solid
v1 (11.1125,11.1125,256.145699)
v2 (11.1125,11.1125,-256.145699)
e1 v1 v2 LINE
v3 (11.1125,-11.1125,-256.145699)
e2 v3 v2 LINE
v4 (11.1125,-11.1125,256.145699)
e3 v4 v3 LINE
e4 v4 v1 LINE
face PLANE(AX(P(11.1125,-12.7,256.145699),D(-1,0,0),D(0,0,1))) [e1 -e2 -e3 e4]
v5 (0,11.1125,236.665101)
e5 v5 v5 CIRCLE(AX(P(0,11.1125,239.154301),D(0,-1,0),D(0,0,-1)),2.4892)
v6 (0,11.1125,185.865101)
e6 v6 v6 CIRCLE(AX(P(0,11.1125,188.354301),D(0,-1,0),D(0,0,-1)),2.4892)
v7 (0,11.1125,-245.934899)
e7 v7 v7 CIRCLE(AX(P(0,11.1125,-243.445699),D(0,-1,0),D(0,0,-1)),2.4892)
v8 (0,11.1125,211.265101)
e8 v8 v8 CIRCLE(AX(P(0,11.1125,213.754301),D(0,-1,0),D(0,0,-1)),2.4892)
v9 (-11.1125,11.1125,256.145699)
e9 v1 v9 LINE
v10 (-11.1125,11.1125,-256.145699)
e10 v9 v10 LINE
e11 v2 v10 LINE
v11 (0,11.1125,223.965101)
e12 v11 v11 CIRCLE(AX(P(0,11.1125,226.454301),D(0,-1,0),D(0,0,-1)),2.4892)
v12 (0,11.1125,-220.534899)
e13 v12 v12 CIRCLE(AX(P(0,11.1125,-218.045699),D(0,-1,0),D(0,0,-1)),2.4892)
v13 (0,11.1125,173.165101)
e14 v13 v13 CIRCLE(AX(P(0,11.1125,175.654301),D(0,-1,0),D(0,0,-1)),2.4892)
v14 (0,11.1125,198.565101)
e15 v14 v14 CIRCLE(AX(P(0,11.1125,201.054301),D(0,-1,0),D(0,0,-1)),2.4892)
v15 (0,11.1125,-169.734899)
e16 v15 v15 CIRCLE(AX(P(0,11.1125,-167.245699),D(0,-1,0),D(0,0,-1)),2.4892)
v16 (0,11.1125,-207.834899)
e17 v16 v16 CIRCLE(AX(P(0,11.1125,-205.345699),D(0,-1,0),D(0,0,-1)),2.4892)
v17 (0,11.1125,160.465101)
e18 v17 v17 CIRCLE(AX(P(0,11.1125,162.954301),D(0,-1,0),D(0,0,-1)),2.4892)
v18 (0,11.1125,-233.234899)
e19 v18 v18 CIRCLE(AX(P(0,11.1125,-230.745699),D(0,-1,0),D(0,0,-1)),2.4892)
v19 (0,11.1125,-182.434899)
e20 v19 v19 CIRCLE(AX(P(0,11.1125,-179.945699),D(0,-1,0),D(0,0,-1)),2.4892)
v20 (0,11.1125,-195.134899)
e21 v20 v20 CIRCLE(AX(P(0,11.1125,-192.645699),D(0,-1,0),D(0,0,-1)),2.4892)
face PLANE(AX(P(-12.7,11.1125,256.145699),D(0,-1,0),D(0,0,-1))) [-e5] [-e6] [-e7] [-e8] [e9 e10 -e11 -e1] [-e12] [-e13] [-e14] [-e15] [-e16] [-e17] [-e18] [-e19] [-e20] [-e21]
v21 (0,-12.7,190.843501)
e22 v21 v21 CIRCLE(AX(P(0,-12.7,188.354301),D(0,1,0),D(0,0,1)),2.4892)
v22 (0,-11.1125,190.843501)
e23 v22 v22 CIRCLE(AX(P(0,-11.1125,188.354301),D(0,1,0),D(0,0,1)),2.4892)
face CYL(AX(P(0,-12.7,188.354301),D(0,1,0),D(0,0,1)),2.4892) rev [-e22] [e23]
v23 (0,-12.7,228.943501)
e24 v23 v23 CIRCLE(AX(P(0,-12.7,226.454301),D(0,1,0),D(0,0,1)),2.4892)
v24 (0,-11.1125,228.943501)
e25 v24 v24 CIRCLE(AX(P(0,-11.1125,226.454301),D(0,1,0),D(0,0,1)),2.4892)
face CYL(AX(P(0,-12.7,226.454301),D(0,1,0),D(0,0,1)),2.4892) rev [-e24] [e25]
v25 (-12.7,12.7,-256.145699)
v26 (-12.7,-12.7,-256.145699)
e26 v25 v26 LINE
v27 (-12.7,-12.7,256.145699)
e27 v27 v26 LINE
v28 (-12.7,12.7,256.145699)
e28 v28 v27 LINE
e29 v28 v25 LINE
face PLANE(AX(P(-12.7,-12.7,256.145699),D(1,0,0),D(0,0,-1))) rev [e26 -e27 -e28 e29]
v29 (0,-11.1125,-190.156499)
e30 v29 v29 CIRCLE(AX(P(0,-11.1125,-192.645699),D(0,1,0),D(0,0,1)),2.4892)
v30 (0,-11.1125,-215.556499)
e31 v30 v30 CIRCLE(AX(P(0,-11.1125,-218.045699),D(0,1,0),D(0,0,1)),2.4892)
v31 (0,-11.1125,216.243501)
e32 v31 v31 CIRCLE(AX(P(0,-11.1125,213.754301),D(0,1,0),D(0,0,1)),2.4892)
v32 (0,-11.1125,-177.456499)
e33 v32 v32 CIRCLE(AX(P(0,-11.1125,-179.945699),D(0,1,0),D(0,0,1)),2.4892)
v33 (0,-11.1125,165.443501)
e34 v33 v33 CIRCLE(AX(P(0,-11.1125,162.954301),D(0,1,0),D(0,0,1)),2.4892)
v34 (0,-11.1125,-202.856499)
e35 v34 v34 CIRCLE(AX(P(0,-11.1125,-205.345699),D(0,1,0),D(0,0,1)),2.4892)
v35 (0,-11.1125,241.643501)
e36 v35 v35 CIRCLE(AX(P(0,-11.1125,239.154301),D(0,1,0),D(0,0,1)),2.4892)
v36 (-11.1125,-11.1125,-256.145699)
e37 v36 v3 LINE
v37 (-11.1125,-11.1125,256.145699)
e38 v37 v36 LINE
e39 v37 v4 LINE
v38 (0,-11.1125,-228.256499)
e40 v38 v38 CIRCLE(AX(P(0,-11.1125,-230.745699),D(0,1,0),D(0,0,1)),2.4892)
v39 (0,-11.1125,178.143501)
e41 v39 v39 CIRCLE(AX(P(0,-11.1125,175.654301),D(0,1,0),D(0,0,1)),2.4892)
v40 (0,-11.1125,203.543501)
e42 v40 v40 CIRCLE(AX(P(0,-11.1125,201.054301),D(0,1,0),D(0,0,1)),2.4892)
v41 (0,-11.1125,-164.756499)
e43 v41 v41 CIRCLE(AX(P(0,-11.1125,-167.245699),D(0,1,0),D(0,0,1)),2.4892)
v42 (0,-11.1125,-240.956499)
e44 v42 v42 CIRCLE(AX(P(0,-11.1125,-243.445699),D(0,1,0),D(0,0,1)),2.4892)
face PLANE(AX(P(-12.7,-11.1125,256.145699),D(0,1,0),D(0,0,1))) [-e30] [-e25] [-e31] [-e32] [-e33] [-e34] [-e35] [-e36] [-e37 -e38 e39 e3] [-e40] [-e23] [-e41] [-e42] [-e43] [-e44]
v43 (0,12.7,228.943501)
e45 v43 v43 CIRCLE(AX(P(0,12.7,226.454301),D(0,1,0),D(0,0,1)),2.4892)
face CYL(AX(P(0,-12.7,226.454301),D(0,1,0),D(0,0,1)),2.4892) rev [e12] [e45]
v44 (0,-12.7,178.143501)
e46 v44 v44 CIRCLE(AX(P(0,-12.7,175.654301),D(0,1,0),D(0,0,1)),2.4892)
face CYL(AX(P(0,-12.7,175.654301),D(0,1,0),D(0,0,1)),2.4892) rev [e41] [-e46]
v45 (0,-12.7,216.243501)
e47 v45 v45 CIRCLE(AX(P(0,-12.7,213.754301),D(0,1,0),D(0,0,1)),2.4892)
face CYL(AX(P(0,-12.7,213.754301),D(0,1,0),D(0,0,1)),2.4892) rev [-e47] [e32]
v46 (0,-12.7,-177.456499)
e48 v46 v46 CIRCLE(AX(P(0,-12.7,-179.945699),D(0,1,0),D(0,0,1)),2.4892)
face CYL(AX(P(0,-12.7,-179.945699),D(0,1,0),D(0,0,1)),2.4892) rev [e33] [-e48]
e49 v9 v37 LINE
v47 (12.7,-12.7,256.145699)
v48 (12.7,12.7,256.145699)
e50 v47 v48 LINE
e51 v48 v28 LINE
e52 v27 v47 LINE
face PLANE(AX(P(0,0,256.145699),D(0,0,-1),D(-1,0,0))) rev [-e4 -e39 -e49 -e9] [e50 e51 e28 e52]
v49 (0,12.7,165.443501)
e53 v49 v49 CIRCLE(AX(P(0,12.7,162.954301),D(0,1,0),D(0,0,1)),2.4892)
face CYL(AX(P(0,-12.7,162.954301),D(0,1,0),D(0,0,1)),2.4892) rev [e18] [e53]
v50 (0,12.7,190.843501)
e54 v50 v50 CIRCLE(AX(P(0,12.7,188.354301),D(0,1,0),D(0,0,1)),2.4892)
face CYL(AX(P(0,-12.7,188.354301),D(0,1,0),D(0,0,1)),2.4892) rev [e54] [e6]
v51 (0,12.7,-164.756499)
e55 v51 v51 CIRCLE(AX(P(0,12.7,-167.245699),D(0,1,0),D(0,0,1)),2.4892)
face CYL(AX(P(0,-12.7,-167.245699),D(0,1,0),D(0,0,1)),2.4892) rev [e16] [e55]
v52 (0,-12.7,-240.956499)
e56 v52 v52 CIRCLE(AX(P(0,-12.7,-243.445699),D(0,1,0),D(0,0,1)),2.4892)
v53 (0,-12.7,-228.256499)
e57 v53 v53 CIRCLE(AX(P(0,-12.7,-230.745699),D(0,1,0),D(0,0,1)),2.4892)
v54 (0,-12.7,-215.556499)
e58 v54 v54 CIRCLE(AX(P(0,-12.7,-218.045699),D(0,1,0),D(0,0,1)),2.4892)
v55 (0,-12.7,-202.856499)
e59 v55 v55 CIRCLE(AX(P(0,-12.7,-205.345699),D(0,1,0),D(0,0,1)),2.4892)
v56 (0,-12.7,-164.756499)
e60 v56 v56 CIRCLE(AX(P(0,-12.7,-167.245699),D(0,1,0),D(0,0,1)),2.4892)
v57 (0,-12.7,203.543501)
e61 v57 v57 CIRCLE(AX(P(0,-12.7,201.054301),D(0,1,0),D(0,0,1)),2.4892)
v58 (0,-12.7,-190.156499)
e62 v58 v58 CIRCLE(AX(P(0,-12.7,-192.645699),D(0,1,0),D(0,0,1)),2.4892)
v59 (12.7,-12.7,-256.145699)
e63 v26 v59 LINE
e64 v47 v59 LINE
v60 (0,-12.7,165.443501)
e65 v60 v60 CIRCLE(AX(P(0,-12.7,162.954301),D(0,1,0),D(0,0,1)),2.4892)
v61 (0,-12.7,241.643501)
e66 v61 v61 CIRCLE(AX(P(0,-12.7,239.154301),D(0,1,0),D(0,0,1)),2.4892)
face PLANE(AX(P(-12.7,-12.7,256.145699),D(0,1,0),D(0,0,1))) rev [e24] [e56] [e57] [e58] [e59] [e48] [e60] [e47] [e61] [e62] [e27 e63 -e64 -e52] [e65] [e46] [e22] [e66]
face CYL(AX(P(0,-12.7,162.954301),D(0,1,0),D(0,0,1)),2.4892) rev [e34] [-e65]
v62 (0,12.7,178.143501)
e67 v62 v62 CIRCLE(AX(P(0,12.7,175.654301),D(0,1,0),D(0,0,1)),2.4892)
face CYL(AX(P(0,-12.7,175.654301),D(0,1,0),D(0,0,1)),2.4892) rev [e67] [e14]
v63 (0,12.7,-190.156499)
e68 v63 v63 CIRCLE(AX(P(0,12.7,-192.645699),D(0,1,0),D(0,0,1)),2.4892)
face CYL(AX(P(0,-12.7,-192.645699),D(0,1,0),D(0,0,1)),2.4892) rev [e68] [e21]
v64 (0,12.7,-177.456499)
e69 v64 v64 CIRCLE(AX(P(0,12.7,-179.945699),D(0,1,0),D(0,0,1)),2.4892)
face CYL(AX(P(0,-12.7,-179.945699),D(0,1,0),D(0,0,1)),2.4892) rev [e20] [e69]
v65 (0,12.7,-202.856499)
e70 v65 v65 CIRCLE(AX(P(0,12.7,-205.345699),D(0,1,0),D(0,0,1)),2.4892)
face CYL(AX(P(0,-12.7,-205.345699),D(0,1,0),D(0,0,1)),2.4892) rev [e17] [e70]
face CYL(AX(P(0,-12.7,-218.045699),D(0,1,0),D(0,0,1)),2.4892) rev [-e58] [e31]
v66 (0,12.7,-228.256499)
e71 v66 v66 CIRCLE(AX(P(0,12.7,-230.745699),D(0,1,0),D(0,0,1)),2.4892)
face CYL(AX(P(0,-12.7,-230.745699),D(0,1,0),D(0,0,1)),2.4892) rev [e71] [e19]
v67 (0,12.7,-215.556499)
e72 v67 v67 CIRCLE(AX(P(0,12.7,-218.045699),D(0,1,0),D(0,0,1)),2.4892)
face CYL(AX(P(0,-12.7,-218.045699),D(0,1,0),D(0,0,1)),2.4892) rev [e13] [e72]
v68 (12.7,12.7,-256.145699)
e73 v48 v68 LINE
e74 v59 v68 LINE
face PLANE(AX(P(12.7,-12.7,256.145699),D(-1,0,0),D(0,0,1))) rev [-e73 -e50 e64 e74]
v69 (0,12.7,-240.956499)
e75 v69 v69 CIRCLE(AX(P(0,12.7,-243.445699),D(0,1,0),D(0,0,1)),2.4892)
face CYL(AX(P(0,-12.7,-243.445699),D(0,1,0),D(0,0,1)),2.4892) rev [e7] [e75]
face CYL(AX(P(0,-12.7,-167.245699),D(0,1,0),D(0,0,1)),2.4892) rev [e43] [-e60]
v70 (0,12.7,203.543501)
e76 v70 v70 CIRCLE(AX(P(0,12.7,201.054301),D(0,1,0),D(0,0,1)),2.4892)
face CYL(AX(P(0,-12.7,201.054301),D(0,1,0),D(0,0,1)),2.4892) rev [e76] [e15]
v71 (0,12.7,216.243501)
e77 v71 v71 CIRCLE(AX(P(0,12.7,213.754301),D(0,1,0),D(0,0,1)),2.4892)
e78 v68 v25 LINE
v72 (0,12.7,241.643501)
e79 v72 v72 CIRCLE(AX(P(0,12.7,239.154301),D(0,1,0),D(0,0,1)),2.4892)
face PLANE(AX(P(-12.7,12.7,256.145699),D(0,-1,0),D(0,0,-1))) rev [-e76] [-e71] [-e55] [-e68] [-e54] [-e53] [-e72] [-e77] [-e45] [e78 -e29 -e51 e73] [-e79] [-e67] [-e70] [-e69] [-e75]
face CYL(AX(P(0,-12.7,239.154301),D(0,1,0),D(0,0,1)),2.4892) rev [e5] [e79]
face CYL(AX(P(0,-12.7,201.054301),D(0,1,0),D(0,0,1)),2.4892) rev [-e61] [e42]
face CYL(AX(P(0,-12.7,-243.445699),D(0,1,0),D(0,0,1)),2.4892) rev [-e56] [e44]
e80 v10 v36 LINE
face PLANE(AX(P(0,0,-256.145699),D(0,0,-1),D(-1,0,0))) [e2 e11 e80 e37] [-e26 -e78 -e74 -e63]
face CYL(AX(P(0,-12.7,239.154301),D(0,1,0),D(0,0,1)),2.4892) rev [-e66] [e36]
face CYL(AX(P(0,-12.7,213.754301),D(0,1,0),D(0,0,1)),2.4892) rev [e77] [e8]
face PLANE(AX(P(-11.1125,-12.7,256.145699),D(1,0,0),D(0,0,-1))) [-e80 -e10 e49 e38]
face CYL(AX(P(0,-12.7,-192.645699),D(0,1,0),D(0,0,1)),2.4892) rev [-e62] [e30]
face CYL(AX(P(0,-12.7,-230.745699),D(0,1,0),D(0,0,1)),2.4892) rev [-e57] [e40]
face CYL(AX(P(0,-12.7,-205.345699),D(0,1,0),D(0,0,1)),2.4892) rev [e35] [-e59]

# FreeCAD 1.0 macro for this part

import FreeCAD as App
import Part
import Sketcher

V = App.Vector
Q = App.Units.Quantity


def faces_at(feature, points):
    """Names of the faces that lie closest to the given points."""
    faces = feature.Shape.Faces
    near = lambda p: min(range(len(faces)), key=lambda i: faces[i].distToShape(Part.Vertex(*p))[0])
    return sorted({f"Face{near(p) + 1}" for p in points})


def add_polygon(sketch, points):
    """Adds a closed chain of lines whose ends are joined by coincident constraints."""
    first, n = sketch.GeometryCount, len(points)
    for a, b in zip(points, points[1:] + points[:1]):
        sketch.addGeometry(Part.LineSegment(App.Vector(*a, 0), App.Vector(*b, 0)), False)
    for i in range(n):
        sketch.addConstraint(Sketcher.Constraint("Coincident", first + i, 2, first + (i + 1) % n, 1))

doc = App.newDocument("Part")
params = doc.addObject("Spreadsheet::Sheet", "Params")
for row, (alias, value) in enumerate([
    ("sketch1_width", "1 in"),
    ("pad1_length", "512.291397 mm"),
    ("thickness_wall", "0.0625 in"),
    ("sketch2_diameter", "0.196 in"),
], start=1):
    params.set(f"A{row}", alias)
    params.set(f"B{row}", "=" + value)
    params.setAlias(f"B{row}", alias)

body = doc.addObject("PartDesign::Body", "Body")

sketch1 = body.newObject("Sketcher::SketchObject", "Sketch")
sketch1.AttachmentSupport = (doc.getObject("XY_Plane"), [""])
sketch1.MapMode = "FlatFace"
add_polygon(sketch1, [(-13, 13), (-13, -13), (13, -13), (13, 13)])
sketch1.addConstraint(Sketcher.Constraint("Vertical", 0))
sketch1.addConstraint(Sketcher.Constraint("Horizontal", 1))
sketch1.addConstraint(Sketcher.Constraint("Vertical", 2))
sketch1.addConstraint(Sketcher.Constraint("Horizontal", 3))
sketch1.addConstraint(Sketcher.Constraint("Symmetric", 0, 2, 2, 2, -1, 1))
sketch1.addConstraint(Sketcher.Constraint("Equal", 3, 0))
sketch1.addConstraint(Sketcher.Constraint("DistanceX", 1, 1, 1, 2, Q("1 in")))
sketch1.setExpression("Constraints[10]", "Params.sketch1_width")
pad1 = body.newObject("PartDesign::Pad", "Pad")
pad1.Profile = sketch1
pad1.setExpression("Length", "Params.pad1_length")
pad1.Midplane = True
doc.recompute()

thickness = body.newObject("PartDesign::Thickness", "Thickness")
thickness.Base = (pad1, faces_at(pad1, [(0, 0, 256.146), (0, 0, -256.146)]))
thickness.setExpression("Value", "Params.thickness_wall")
thickness.Reversed = True
thickness.Join = "Intersection"

sketch2 = body.newObject("Sketcher::SketchObject", "Sketch001")
sketch2.AttachmentSupport = (doc.getObject("XZ_Plane"), [""])
sketch2.MapMode = "FlatFace"
sketch2.addGeometry(Part.Circle(V(0, -243.4, 0), V(0, 0, 1), 2.5), False)
sketch2.addGeometry(Part.Circle(V(0, -230.7, 0), V(0, 0, 1), 2.5), False)
sketch2.addGeometry(Part.Circle(V(0, -218, 0), V(0, 0, 1), 2.5), False)
sketch2.addGeometry(Part.Circle(V(0, -205.3, 0), V(0, 0, 1), 2.5), False)
sketch2.addGeometry(Part.Circle(V(0, -192.6, 0), V(0, 0, 1), 2.5), False)
sketch2.addGeometry(Part.Circle(V(0, -179.9, 0), V(0, 0, 1), 2.5), False)
sketch2.addGeometry(Part.Circle(V(0, -167.2, 0), V(0, 0, 1), 2.5), False)
sketch2.addGeometry(Part.Circle(V(0, 163, 0), V(0, 0, 1), 2.5), False)
sketch2.addGeometry(Part.Circle(V(0, 175.7, 0), V(0, 0, 1), 2.5), False)
sketch2.addGeometry(Part.Circle(V(0, 188.4, 0), V(0, 0, 1), 2.5), False)
sketch2.addGeometry(Part.Circle(V(0, 201.1, 0), V(0, 0, 1), 2.5), False)
sketch2.addGeometry(Part.Circle(V(0, 213.8, 0), V(0, 0, 1), 2.5), False)
sketch2.addGeometry(Part.Circle(V(0, 226.5, 0), V(0, 0, 1), 2.5), False)
sketch2.addGeometry(Part.Circle(V(0, 239.2, 0), V(0, 0, 1), 2.5), False)
sketch2.addConstraint(Sketcher.Constraint("Equal", 0, 1))
sketch2.addConstraint(Sketcher.Constraint("Equal", 1, 2))
sketch2.addConstraint(Sketcher.Constraint("Equal", 2, 3))
sketch2.addConstraint(Sketcher.Constraint("Equal", 3, 4))
sketch2.addConstraint(Sketcher.Constraint("Equal", 4, 5))
sketch2.addConstraint(Sketcher.Constraint("Equal", 5, 6))
sketch2.addConstraint(Sketcher.Constraint("Equal", 6, 7))
sketch2.addConstraint(Sketcher.Constraint("Equal", 7, 8))
sketch2.addConstraint(Sketcher.Constraint("Equal", 8, 9))
sketch2.addConstraint(Sketcher.Constraint("Equal", 9, 10))
sketch2.addConstraint(Sketcher.Constraint("Equal", 10, 11))
sketch2.addConstraint(Sketcher.Constraint("Equal", 11, 12))
sketch2.addConstraint(Sketcher.Constraint("Equal", 12, 13))
sketch2.addConstraint(Sketcher.Constraint("PointOnObject", 0, 3, -2))
sketch2.addConstraint(Sketcher.Constraint("PointOnObject", 1, 3, -2))
sketch2.addConstraint(Sketcher.Constraint("PointOnObject", 2, 3, -2))
sketch2.addConstraint(Sketcher.Constraint("PointOnObject", 3, 3, -2))
sketch2.addConstraint(Sketcher.Constraint("PointOnObject", 4, 3, -2))
sketch2.addConstraint(Sketcher.Constraint("PointOnObject", 5, 3, -2))
sketch2.addConstraint(Sketcher.Constraint("PointOnObject", 6, 3, -2))
sketch2.addConstraint(Sketcher.Constraint("PointOnObject", 7, 3, -2))
sketch2.addConstraint(Sketcher.Constraint("PointOnObject", 8, 3, -2))
sketch2.addConstraint(Sketcher.Constraint("PointOnObject", 9, 3, -2))
sketch2.addConstraint(Sketcher.Constraint("PointOnObject", 10, 3, -2))
sketch2.addConstraint(Sketcher.Constraint("PointOnObject", 11, 3, -2))
sketch2.addConstraint(Sketcher.Constraint("PointOnObject", 12, 3, -2))
sketch2.addConstraint(Sketcher.Constraint("PointOnObject", 13, 3, -2))
sketch2.addConstraint(Sketcher.Constraint("Diameter", 0, Q("0.196 in")))
sketch2.addConstraint(Sketcher.Constraint("DistanceY", 0, 3, 2, 3, Q("1 in")))
sketch2.addConstraint(Sketcher.Constraint("DistanceY", 1, 3, 3, 3, Q("1 in")))
sketch2.addConstraint(Sketcher.Constraint("DistanceY", 2, 3, 4, 3, Q("1 in")))
sketch2.addConstraint(Sketcher.Constraint("DistanceY", 3, 3, 5, 3, Q("1 in")))
sketch2.addConstraint(Sketcher.Constraint("DistanceY", 4, 3, 6, 3, Q("1 in")))
sketch2.addConstraint(Sketcher.Constraint("DistanceY", 6, 3, 7, 3, Q("13 in")))
sketch2.addConstraint(Sketcher.Constraint("DistanceY", 5, 3, 8, 3, Q("14 in")))
sketch2.addConstraint(Sketcher.Constraint("DistanceY", 7, 3, 9, 3, Q("1 in")))
sketch2.addConstraint(Sketcher.Constraint("DistanceY", 8, 3, 10, 3, Q("1 in")))
sketch2.addConstraint(Sketcher.Constraint("DistanceY", 9, 3, 11, 3, Q("1 in")))
sketch2.addConstraint(Sketcher.Constraint("DistanceY", 10, 3, 12, 3, Q("1 in")))
sketch2.addConstraint(Sketcher.Constraint("DistanceY", 11, 3, 13, 3, Q("1 in")))
sketch2.addConstraint(Sketcher.Constraint("DistanceY", 0, 3, 1, 3, Q("0.5 in")))
sketch2.addConstraint(Sketcher.Constraint("DistanceY", 0, 3, -1, 1, Q("243.445699 mm")))
sketch2.setExpression("Constraints[27]", "Params.sketch2_diameter")
pocket1 = body.newObject("PartDesign::Pocket", "Pocket")
pocket1.Profile = sketch2
pocket1.Type = "ThroughAll"
pocket1.Midplane = True

doc.recompute()
